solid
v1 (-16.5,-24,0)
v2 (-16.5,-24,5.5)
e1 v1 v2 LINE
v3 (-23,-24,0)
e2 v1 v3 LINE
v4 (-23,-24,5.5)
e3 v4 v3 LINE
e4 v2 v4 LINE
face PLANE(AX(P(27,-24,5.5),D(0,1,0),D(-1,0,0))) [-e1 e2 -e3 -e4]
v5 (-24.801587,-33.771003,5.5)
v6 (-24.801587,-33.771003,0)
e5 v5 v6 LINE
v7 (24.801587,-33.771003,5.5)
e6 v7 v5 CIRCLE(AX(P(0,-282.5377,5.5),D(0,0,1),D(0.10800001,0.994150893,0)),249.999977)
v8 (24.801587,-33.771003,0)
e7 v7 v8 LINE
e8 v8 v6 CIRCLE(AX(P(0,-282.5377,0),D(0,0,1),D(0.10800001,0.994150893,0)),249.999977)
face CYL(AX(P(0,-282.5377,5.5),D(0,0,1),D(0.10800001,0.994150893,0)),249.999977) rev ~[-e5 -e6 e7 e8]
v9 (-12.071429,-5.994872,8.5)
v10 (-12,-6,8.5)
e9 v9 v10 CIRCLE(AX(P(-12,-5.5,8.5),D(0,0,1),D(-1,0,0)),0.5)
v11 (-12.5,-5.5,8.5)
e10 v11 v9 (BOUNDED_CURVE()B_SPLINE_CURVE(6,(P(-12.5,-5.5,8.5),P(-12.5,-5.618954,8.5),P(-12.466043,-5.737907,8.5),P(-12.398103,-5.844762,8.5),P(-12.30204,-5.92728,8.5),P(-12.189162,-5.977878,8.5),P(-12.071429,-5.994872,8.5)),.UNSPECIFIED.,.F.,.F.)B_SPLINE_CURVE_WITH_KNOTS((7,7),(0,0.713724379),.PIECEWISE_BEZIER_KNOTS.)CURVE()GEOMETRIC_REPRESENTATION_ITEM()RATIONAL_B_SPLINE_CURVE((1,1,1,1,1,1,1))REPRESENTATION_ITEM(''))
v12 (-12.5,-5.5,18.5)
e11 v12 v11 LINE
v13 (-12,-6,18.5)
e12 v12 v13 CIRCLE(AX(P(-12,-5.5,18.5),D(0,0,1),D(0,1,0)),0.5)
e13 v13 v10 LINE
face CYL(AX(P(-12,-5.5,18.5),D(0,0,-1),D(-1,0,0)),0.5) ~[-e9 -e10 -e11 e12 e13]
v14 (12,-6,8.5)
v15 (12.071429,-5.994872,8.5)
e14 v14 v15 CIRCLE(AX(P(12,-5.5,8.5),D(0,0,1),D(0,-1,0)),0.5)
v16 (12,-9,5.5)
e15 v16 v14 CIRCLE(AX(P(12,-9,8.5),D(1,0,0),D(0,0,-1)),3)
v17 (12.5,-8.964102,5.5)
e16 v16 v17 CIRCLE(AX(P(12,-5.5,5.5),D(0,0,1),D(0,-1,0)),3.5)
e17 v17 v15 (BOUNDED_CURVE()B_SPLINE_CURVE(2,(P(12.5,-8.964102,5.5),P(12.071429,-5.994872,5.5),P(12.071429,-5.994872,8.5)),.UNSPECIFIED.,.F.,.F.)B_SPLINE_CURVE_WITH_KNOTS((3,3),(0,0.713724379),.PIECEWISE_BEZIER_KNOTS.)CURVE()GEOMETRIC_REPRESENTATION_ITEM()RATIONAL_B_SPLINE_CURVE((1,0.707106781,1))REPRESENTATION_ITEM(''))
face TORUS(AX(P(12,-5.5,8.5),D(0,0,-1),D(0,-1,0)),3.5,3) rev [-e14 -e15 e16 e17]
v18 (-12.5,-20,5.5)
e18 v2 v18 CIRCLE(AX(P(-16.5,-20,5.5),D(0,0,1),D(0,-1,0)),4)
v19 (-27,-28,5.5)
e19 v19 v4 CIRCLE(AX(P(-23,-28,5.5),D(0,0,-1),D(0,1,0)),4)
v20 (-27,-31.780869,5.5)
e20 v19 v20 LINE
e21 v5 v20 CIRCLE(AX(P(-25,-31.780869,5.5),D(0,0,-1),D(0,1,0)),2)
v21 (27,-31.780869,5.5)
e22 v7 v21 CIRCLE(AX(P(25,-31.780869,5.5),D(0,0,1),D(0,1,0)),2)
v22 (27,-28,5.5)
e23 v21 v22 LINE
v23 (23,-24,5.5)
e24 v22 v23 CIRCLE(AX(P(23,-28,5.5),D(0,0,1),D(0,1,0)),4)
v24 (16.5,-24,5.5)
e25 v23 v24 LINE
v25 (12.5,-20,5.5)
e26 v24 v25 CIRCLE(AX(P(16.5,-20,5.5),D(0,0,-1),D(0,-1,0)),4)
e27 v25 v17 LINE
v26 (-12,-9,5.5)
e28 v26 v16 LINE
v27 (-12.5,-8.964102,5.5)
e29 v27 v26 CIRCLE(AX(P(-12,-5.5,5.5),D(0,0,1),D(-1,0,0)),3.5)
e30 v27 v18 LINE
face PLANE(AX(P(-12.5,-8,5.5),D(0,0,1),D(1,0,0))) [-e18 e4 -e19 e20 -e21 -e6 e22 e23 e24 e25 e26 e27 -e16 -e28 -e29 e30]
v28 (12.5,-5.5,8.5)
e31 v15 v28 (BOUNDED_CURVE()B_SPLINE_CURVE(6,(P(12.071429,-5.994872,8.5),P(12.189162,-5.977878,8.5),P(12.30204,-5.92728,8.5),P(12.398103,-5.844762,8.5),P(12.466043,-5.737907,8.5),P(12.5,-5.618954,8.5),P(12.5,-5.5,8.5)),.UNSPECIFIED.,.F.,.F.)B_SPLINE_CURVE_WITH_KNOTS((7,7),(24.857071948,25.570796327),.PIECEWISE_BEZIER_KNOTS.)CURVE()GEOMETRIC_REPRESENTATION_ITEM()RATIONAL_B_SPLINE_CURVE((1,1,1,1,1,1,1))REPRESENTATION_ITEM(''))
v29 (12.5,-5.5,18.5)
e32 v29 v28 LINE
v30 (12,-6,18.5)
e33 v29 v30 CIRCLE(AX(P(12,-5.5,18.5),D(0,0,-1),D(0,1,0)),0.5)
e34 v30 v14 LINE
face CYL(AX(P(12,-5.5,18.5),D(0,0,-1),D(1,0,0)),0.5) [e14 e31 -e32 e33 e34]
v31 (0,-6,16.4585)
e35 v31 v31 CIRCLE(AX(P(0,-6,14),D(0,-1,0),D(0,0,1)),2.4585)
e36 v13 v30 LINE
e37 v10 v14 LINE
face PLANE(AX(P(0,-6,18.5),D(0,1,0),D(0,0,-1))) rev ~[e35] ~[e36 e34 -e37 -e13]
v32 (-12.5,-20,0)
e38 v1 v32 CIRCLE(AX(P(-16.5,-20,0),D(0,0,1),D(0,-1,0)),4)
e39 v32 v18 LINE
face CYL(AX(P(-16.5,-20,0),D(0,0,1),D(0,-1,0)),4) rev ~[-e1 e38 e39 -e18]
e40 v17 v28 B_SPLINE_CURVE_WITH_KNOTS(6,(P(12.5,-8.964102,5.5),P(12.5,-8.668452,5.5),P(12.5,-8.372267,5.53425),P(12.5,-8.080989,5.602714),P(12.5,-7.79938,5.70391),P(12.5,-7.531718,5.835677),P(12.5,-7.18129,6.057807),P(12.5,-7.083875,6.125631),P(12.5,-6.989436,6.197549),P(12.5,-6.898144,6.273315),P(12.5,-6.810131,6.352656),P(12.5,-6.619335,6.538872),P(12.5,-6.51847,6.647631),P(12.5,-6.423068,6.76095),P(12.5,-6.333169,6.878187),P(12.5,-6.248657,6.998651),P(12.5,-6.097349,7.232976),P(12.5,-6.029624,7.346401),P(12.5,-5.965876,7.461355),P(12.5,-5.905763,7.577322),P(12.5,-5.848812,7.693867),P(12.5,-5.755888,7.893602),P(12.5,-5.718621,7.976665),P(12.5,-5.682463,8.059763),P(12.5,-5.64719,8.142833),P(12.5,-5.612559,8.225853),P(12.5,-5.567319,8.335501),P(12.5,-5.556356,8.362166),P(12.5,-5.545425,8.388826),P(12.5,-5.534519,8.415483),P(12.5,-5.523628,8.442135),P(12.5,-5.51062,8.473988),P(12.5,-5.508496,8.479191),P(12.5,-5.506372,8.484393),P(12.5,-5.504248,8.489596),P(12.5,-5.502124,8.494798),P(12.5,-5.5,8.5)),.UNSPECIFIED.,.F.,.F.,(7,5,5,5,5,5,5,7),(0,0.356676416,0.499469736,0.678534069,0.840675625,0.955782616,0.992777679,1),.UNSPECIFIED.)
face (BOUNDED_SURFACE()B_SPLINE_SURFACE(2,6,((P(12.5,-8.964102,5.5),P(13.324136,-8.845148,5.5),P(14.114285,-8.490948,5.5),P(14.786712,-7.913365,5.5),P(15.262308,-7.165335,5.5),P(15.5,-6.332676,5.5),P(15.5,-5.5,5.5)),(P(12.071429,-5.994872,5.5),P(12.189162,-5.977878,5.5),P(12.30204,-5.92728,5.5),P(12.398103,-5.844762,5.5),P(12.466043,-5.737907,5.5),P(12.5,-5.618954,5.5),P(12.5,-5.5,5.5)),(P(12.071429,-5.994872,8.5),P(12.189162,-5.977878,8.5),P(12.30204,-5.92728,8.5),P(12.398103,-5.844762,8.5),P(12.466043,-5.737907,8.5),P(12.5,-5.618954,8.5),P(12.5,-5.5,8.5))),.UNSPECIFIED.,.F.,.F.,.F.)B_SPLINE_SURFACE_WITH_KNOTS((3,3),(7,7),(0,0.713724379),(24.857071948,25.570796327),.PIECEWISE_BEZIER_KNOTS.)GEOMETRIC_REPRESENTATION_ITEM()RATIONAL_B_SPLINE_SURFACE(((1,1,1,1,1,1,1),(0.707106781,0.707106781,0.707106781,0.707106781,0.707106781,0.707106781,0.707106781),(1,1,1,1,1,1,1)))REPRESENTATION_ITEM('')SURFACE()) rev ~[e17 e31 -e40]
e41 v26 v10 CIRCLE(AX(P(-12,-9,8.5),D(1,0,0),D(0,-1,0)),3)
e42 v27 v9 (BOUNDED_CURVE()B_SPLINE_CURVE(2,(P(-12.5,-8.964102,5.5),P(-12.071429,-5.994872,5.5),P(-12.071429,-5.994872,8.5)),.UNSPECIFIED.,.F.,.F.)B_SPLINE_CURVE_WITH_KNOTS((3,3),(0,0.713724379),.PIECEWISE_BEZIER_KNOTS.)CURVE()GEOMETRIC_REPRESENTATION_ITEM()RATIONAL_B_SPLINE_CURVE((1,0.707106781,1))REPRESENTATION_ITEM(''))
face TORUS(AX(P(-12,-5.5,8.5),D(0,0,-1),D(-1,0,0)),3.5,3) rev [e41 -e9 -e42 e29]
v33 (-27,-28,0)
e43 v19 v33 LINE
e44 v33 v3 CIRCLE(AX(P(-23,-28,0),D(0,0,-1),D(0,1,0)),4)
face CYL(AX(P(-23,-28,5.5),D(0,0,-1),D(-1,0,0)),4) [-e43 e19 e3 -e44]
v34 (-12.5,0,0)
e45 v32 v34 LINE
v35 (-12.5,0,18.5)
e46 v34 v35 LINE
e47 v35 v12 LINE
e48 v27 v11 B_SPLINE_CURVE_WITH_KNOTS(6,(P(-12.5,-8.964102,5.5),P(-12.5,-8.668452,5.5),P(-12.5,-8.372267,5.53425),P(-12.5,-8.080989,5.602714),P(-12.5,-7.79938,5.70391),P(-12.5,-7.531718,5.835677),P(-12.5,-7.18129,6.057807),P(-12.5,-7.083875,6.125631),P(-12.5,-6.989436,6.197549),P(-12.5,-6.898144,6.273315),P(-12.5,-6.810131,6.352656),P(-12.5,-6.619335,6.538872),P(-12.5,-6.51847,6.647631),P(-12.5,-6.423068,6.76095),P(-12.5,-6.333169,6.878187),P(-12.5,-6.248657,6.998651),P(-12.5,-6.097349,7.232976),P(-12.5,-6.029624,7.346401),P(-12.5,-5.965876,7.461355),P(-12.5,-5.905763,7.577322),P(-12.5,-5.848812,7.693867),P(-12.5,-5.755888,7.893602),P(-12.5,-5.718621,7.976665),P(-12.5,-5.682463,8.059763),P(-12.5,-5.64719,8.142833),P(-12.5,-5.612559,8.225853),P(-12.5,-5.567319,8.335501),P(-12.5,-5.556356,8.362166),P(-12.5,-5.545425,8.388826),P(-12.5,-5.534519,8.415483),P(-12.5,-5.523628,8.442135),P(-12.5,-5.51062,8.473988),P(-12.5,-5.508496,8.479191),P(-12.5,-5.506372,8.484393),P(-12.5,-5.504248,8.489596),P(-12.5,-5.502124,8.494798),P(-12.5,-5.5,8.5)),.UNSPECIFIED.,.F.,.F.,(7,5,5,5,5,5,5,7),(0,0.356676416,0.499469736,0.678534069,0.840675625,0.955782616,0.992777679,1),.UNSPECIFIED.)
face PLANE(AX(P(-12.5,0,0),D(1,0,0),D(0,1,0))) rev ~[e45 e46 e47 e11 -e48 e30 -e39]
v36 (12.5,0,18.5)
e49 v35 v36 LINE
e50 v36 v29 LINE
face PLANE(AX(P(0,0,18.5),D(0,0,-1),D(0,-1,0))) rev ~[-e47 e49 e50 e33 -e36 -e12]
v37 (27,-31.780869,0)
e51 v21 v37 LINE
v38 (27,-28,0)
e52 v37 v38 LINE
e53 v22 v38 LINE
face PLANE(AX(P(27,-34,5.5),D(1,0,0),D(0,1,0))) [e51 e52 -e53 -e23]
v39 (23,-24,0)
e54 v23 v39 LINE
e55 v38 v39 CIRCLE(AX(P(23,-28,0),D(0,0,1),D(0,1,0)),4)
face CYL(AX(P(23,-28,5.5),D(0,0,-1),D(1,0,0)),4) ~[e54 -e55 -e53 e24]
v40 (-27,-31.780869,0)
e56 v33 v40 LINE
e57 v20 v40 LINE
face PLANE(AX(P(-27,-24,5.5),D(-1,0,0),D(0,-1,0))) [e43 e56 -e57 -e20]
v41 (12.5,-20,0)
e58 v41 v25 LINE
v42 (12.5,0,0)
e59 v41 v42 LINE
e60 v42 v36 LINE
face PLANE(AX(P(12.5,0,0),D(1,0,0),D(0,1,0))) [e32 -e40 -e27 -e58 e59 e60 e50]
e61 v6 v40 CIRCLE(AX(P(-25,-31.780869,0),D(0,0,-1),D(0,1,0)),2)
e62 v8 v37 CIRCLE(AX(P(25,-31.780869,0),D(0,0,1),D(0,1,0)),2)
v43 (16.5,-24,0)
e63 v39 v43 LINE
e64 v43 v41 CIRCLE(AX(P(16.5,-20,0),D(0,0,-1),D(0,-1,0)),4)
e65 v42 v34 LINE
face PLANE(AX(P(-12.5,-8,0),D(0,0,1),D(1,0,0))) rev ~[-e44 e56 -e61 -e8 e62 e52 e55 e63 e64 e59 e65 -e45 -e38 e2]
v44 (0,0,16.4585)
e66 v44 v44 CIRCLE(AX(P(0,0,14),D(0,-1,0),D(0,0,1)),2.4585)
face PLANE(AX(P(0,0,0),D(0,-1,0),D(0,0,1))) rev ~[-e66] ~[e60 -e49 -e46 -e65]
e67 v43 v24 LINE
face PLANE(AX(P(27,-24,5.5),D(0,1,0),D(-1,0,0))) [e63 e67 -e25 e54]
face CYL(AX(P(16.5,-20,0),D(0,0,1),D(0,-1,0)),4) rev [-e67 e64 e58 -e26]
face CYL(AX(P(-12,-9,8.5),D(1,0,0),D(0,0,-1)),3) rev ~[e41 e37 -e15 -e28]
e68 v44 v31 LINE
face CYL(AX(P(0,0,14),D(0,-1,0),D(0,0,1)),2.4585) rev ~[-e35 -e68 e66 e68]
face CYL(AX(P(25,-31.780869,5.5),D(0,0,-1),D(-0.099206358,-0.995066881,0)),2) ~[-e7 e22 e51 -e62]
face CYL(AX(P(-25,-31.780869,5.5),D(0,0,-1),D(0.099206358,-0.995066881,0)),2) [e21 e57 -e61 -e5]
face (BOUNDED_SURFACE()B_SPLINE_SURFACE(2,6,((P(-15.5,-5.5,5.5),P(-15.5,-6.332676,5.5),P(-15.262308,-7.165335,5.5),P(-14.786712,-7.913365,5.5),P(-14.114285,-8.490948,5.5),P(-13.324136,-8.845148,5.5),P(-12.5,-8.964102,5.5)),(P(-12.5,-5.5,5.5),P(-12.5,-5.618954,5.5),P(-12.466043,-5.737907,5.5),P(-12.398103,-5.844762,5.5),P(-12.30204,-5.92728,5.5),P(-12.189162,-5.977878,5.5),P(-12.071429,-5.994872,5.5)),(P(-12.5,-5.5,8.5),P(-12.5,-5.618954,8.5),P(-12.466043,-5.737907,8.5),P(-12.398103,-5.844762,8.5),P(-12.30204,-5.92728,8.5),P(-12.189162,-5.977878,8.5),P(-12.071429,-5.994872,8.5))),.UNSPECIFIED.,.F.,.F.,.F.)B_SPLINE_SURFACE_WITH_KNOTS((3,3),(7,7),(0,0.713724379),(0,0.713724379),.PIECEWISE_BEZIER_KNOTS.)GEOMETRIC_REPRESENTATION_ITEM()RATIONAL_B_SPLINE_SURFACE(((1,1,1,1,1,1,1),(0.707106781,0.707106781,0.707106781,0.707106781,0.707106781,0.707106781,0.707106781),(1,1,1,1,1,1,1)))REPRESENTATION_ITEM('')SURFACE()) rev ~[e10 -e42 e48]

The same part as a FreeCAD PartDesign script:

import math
import FreeCAD as App
import Part
import Sketcher

V = App.Vector
Q = App.Units.Quantity


def edges_at(feature, points):
    """Names of the edges that pass closest to the given points."""
    edges = feature.Shape.Edges
    near = lambda p: min(range(len(edges)), key=lambda i: edges[i].distToShape(Part.Vertex(*p))[0])
    return sorted({f"Edge{near(p) + 1}" for p in points})


def add_polygon(sketch, points):
    """Adds a closed chain of lines whose ends are joined by coincident constraints."""
    first, n = sketch.GeometryCount, len(points)
    for a, b in zip(points, points[1:] + points[:1]):
        sketch.addGeometry(Part.LineSegment(App.Vector(*a, 0), App.Vector(*b, 0)), False)
    for i in range(n):
        sketch.addConstraint(Sketcher.Constraint("Coincident", first + i, 2, first + (i + 1) % n, 1))

doc = App.newDocument("Part")
params = doc.addObject("Spreadsheet::Sheet", "Params")
for row, (alias, value) in enumerate([
    ("sketch1_width", "6 mm"),
    ("sketch1_width2", "24 mm"),
    ("sketch1_height", "18.5 mm"),
    ("sketch1_height2", "5.5 mm"),
    ("pad1_length", "25 mm"),
    ("hole_diameter", "4.917 mm"),
    ("fillet_radius", "0.5 mm"),
    ("sketch3_radius", "250 mm"),
    ("sketch3_width", "54 mm"),
    ("sketch3_height", "10 mm"),
    ("pad2_length", "5.5 mm"),
    ("fillet2_radius", "2 mm"),
    ("fillet3_radius", "4 mm"),
    ("fillet4_radius", "3 mm"),
], start=1):
    params.set(f"A{row}", alias)
    params.set(f"B{row}", "=" + value)
    params.setAlias(f"B{row}", alias)

body = doc.addObject("PartDesign::Body", "Body")

sketch1 = body.newObject("Sketcher::SketchObject", "Sketch")
sketch1.AttachmentSupport = (doc.getObject("YZ_Plane"), [""])
sketch1.MapMode = "FlatFace"
add_polygon(sketch1, [(0, 0), (0, 18), (-6, 18), (-6, 6), (-24, 6), (-24, 0)])
sketch1.addConstraint(Sketcher.Constraint("Vertical", 0))
sketch1.addConstraint(Sketcher.Constraint("Horizontal", 1))
sketch1.addConstraint(Sketcher.Constraint("Vertical", 2))
sketch1.addConstraint(Sketcher.Constraint("Horizontal", 3))
sketch1.addConstraint(Sketcher.Constraint("Vertical", 4))
sketch1.addConstraint(Sketcher.Constraint("Horizontal", 5))
sketch1.addConstraint(Sketcher.Constraint("Coincident", 5, 2, -1, 1))
sketch1.addConstraint(Sketcher.Constraint("DistanceX", 1, 2, 1, 1, Q("6 mm")))
sketch1.addConstraint(Sketcher.Constraint("DistanceX", 5, 1, 5, 2, Q("24 mm")))
sketch1.addConstraint(Sketcher.Constraint("DistanceY", 0, 1, 0, 2, Q("18.5 mm")))
sketch1.addConstraint(Sketcher.Constraint("DistanceY", 4, 2, 4, 1, Q("5.5 mm")))
sketch1.setExpression("Constraints[13]", "Params.sketch1_width")
sketch1.setExpression("Constraints[14]", "Params.sketch1_width2")
sketch1.setExpression("Constraints[15]", "Params.sketch1_height")
sketch1.setExpression("Constraints[16]", "Params.sketch1_height2")
pad1 = body.newObject("PartDesign::Pad", "Pad")
pad1.Profile = sketch1
pad1.setExpression("Length", "Params.pad1_length")
pad1.Midplane = True

sketch2 = body.newObject("Sketcher::SketchObject", "Sketch001")
sketch2.AttachmentSupport = (doc.getObject("XZ_Plane"), [""])
sketch2.MapMode = "FlatFace"
sketch2.addGeometry(Part.Circle(V(0, 14, 0), V(0, 0, 1), 2.5), False)
sketch2.addConstraint(Sketcher.Constraint("PointOnObject", 0, 3, -2))
sketch2.addConstraint(Sketcher.Constraint("Diameter", 0, Q("4.917 mm")))
sketch2.addConstraint(Sketcher.Constraint("DistanceY", -1, 1, 0, 3, Q("14 mm")))
doc.recompute()
hole = body.newObject("PartDesign::Hole", "Hole")
hole.Profile = sketch2
hole.ThreadType = "None"
hole.setExpression("Diameter", "Params.hole_diameter")
hole.DepthType = "ThroughAll"
hole.Reversed = True
doc.recompute()

fillet = body.newObject("PartDesign::Fillet", "Fillet")
fillet.Base = (hole, edges_at(hole, [(12.5, -6, 12), (-12.5, -6, 12)]))
fillet.setExpression("Radius", "Params.fillet_radius")

sketch3 = body.newObject("Sketcher::SketchObject", "Sketch002")
sketch3.AttachmentSupport = (doc.getObject("XY_Plane"), [""])
sketch3.MapMode = "FlatFace"
sketch3.AttachmentOffset = App.Placement(V(0, 0, 5.5), App.Rotation())
sketch3.addGeometry(Part.ArcOfCircle(Part.Circle(V(0, -283, 0), V(0, 0, 1), 250), math.radians(83.8), math.radians(96.2)), False)
sketch3.addGeometry(Part.LineSegment(V(27, -34, 0), V(27, -24, 0)), False)
sketch3.addGeometry(Part.LineSegment(V(27, -24, 0), V(-27, -24, 0)), False)
sketch3.addGeometry(Part.LineSegment(V(-27, -24, 0), V(-27, -34, 0)), False)
sketch3.addConstraint(Sketcher.Constraint("Coincident", 0, 1, 1, 1))
sketch3.addConstraint(Sketcher.Constraint("Coincident", 1, 2, 2, 1))
sketch3.addConstraint(Sketcher.Constraint("Coincident", 2, 2, 3, 1))
sketch3.addConstraint(Sketcher.Constraint("Coincident", 3, 2, 0, 2))
sketch3.addConstraint(Sketcher.Constraint("Vertical", 1))
sketch3.addConstraint(Sketcher.Constraint("Horizontal", 2))
sketch3.addConstraint(Sketcher.Constraint("Vertical", 3))
sketch3.addConstraint(Sketcher.Constraint("Symmetric", 0, 1, 3, 2, -2))
sketch3.addConstraint(Sketcher.Constraint("Radius", 0, Q("250 mm")))
sketch3.addConstraint(Sketcher.Constraint("DistanceX", 2, 2, 2, 1, Q("54 mm")))
sketch3.addConstraint(Sketcher.Constraint("DistanceY", 1, 1, 1, 2, Q("10 mm")))
sketch3.addConstraint(Sketcher.Constraint("DistanceY", 1, 2, -1, 1, Q("24 mm")))
sketch3.setExpression("Constraints[8]", "Params.sketch3_radius")
sketch3.setExpression("Constraints[9]", "Params.sketch3_width")
sketch3.setExpression("Constraints[10]", "Params.sketch3_height")
pad2 = body.newObject("PartDesign::Pad", "Pad001")
pad2.Profile = sketch3
pad2.setExpression("Length", "Params.pad2_length")
pad2.Reversed = True
doc.recompute()

fillet2 = body.newObject("PartDesign::Fillet", "Fillet001")
fillet2.Base = (pad2, edges_at(pad2, [(27, -34, 2.75), (-27, -34, 2.75)]))
fillet2.setExpression("Radius", "Params.fillet2_radius")
doc.recompute()

fillet3 = body.newObject("PartDesign::Fillet", "Fillet002")
fillet3.Base = (fillet2, edges_at(fillet2, [
    (12.5, -24, 2.75),
    (-12.5, -24, 2.75),
    (27, -24, 2.75),
    (-27, -24, 2.75),
]))
fillet3.setExpression("Radius", "Params.fillet3_radius")
doc.recompute()

fillet4 = body.newObject("PartDesign::Fillet", "Fillet003")
fillet4.Base = (fillet3, edges_at(fillet3, [(0, -6, 5.5)]))
fillet4.setExpression("Radius", "Params.fillet4_radius")

doc.recompute()
